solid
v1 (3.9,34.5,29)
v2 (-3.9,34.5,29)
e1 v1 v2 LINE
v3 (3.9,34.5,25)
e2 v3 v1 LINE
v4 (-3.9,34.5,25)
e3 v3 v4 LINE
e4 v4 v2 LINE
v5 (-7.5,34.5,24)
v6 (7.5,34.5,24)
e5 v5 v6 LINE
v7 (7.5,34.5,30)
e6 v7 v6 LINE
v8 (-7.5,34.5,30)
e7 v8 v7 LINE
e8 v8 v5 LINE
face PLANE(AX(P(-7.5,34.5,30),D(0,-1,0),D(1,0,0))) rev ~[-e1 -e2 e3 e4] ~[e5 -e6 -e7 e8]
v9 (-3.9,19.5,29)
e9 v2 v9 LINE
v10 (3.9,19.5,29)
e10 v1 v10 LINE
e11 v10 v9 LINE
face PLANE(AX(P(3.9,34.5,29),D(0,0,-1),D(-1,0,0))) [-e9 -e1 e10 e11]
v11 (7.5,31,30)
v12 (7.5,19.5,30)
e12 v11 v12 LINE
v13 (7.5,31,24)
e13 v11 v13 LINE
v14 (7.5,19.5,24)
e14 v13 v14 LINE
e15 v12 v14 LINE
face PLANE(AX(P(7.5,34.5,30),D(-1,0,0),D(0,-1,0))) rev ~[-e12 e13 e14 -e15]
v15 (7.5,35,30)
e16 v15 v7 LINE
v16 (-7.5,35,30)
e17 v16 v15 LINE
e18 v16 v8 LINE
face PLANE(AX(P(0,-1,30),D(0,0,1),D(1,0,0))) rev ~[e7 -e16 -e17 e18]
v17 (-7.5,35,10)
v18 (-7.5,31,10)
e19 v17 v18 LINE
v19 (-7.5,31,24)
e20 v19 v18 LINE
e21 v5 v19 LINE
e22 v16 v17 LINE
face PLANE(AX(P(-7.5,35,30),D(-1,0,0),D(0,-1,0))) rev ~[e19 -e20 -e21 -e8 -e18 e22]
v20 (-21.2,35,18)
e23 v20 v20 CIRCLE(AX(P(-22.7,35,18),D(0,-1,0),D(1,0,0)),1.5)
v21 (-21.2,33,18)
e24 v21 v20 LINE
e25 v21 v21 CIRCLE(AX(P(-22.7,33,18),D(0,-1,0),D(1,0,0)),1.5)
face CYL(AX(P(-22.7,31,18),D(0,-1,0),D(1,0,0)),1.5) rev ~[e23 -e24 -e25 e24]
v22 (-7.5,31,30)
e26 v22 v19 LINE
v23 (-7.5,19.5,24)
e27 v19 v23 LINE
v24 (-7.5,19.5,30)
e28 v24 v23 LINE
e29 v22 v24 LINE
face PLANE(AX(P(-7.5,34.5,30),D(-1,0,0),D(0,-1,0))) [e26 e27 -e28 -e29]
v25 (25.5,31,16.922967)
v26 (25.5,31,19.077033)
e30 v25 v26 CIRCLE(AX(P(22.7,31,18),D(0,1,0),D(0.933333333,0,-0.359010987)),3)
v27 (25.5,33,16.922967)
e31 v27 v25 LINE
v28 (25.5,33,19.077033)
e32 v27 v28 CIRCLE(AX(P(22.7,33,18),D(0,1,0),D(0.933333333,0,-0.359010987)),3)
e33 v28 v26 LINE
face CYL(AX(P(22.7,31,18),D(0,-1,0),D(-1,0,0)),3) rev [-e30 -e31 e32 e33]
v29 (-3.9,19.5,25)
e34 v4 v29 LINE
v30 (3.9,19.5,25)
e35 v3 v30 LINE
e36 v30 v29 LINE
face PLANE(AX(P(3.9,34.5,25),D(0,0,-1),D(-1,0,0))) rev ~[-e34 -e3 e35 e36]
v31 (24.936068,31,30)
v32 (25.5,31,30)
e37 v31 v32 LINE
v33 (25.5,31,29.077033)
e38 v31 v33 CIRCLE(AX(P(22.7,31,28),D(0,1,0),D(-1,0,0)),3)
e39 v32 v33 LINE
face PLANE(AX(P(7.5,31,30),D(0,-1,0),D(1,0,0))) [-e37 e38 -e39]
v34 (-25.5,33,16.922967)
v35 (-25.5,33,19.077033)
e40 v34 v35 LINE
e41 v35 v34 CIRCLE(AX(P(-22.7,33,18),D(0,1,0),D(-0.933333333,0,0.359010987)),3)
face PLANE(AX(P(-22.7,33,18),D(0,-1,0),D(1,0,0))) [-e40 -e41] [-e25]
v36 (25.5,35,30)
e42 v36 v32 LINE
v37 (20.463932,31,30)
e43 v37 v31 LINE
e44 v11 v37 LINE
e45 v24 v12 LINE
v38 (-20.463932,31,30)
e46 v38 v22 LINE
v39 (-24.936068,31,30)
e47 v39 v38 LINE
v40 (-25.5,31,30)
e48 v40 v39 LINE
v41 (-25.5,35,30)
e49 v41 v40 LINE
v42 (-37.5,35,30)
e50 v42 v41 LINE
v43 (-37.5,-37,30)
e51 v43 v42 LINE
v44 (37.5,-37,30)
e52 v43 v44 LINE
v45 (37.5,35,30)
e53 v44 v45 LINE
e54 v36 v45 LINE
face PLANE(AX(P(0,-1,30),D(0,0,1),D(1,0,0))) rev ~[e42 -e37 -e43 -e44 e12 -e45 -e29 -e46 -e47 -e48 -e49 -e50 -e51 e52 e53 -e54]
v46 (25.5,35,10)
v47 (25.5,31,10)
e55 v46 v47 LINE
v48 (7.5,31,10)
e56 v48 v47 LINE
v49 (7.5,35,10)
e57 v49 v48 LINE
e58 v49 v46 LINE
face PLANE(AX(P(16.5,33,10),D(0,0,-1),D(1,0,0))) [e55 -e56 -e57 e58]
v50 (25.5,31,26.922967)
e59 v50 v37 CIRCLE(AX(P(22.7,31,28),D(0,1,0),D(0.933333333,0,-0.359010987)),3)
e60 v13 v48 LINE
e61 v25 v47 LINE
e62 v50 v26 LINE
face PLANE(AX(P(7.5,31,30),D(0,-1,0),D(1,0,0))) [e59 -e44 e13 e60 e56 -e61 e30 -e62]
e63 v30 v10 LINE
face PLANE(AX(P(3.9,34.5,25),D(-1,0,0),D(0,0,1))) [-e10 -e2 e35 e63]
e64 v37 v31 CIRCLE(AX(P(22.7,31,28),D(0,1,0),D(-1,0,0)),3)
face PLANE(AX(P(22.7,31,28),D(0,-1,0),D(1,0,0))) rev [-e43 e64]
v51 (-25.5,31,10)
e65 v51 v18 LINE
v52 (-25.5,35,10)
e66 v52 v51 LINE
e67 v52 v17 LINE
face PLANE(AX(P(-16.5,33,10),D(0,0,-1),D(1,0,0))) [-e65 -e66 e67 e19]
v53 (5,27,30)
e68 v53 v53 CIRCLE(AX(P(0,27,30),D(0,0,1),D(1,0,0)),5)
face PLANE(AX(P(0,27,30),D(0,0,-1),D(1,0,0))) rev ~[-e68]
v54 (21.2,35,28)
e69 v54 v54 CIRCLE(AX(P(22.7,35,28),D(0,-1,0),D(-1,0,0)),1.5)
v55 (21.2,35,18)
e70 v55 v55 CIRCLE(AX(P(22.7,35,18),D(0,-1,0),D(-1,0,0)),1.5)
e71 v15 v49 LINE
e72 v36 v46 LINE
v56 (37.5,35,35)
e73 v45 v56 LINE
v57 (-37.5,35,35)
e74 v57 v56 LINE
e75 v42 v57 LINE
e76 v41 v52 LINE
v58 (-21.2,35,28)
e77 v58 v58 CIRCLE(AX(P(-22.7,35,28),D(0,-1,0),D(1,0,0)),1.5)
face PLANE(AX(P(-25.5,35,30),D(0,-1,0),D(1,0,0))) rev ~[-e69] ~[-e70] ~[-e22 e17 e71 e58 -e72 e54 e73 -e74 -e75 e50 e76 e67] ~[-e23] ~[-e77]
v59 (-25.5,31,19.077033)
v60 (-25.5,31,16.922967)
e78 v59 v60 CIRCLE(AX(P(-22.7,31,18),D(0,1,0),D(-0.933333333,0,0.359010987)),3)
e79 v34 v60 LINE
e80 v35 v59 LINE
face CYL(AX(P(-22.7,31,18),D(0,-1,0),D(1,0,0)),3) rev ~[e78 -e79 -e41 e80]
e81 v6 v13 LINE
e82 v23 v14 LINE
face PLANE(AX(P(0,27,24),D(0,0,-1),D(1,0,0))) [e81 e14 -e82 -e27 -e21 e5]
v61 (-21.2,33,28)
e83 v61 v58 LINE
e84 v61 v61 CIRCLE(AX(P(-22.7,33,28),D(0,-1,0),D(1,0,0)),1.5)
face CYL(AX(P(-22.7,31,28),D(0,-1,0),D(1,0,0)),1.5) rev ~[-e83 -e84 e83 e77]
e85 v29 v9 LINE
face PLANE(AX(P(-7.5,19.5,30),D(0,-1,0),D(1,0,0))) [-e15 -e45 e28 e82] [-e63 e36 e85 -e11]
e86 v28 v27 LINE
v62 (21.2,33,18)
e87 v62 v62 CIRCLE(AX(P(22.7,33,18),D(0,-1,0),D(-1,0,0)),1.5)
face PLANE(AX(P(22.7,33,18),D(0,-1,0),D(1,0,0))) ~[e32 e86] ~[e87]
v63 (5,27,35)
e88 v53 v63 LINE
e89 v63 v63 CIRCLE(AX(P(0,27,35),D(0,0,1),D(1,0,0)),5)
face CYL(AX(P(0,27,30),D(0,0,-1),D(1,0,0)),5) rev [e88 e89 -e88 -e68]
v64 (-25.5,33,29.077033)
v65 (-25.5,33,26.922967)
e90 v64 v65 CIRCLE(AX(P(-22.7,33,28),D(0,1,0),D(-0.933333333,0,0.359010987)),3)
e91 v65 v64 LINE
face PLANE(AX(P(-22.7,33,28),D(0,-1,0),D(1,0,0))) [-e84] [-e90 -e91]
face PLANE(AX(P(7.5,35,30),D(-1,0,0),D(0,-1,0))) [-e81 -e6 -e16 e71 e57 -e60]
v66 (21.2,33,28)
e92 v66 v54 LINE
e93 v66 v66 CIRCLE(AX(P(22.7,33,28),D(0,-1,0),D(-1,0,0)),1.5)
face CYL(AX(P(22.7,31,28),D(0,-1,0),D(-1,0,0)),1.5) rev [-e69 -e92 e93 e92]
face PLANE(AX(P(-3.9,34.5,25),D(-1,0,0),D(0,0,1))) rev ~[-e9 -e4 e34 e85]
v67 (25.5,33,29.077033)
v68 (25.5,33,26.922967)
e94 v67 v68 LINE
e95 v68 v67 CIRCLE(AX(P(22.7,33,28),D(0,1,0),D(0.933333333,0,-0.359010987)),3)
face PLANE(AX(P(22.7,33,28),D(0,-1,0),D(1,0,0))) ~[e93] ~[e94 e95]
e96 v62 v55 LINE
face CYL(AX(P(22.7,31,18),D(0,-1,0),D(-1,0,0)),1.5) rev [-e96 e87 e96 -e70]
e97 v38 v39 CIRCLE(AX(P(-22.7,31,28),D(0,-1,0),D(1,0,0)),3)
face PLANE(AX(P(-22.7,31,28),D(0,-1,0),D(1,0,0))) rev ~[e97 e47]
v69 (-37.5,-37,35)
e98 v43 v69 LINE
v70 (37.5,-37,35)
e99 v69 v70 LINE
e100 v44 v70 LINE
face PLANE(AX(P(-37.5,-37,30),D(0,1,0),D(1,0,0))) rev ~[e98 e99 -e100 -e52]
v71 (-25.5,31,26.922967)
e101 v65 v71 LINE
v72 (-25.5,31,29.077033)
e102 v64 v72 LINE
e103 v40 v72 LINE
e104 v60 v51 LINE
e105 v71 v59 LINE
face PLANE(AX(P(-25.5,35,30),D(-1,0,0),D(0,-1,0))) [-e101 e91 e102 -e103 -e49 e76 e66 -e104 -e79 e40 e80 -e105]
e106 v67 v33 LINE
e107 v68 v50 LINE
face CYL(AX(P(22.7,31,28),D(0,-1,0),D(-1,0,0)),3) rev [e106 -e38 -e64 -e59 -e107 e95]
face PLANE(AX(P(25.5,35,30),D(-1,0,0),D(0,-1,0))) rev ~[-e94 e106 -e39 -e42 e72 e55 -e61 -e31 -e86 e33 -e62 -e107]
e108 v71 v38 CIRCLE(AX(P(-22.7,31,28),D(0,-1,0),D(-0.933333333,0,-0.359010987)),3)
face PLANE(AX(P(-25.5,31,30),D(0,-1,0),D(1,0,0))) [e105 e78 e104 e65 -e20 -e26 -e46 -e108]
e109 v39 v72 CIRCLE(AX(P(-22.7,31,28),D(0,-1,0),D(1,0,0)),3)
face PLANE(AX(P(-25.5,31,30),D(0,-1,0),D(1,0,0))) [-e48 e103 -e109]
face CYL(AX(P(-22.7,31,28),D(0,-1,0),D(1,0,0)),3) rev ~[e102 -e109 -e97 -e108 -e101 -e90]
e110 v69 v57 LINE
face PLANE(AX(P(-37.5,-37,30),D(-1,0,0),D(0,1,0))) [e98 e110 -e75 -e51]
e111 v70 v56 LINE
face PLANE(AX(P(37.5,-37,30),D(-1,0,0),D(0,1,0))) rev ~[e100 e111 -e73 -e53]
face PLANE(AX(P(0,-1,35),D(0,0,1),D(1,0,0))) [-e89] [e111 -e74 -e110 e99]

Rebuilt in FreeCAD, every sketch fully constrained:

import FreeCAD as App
import Part
import Sketcher


def add_polygon(sketch, points):
    """Adds a closed chain of lines whose ends are joined by coincident constraints."""
    first, n = sketch.GeometryCount, len(points)
    for a, b in zip(points, points[1:] + points[:1]):
        sketch.addGeometry(Part.LineSegment(App.Vector(*a, 0), App.Vector(*b, 0)), False)
    for i in range(n):
        sketch.addConstraint(Sketcher.Constraint("Coincident", first + i, 2, first + (i + 1) % n, 1))

doc = App.newDocument("Part")
body = doc.addObject("PartDesign::Body", "Body")

sketch1 = body.newObject("Sketcher::SketchObject", "Sketch")
sketch1.AttachmentSupport = (doc.getObject("XY_Plane"), [""])
sketch1.MapMode = "FlatFace"
add_polygon(sketch1, [(-38, 35), (-38, -37), (38, -37), (38, 35)])
sketch1.addGeometry(Part.Circle(App.Vector(0, 27, 0), App.Vector(0, 0, 1), 5), False)
sketch1.addConstraint(Sketcher.Constraint("Vertical", 0))
sketch1.addConstraint(Sketcher.Constraint("Horizontal", 1))
sketch1.addConstraint(Sketcher.Constraint("Vertical", 2))
sketch1.addConstraint(Sketcher.Constraint("Horizontal", 3))
sketch1.addConstraint(Sketcher.Constraint("PointOnObject", 4, 3, -2))
sketch1.addConstraint(Sketcher.Constraint("Diameter", 4, 10.0))
sketch1.addConstraint(Sketcher.Constraint("DistanceX", 1, 1, 1, 2, 75.0))
sketch1.addConstraint(Sketcher.Constraint("DistanceY", 0, 2, 0, 1, 72.0))
sketch1.addConstraint(Sketcher.Constraint("DistanceY", -1, 1, 4, 3, 27.0))
sketch1.addConstraint(Sketcher.Constraint("DistanceY", 0, 2, -1, 1, 37.0))
sketch1.addConstraint(Sketcher.Constraint("DistanceX", 0, 2, -1, 1, 37.5))
pad1 = body.newObject("PartDesign::Pad", "Pad")
pad1.Profile = sketch1
pad1.Length = 5

sketch2 = body.newObject("Sketcher::SketchObject", "Sketch001")
sketch2.AttachmentSupport = (doc.getObject("XY_Plane"), [""])
sketch2.MapMode = "FlatFace"
add_polygon(sketch2, [(-8, 20), (-8, 34), (8, 34), (8, 20)])
sketch2.addConstraint(Sketcher.Constraint("Vertical", 0))
sketch2.addConstraint(Sketcher.Constraint("Horizontal", 1))
sketch2.addConstraint(Sketcher.Constraint("Vertical", 2))
sketch2.addConstraint(Sketcher.Constraint("Horizontal", 3))
sketch2.addConstraint(Sketcher.Constraint("Equal", 3, 0))
sketch2.addConstraint(Sketcher.Constraint("DistanceX", 1, 1, 1, 2, 15.0))
sketch2.addConstraint(Sketcher.Constraint("DistanceX", 0, 2, -1, 1, 7.5))
sketch2.addConstraint(Sketcher.Constraint("DistanceY", -1, 1, 0, 2, 34.5))
pad2 = body.newObject("PartDesign::Pad", "Pad001")
pad2.Profile = sketch2
pad2.Length = 6
pad2.Reversed = True

sketch3 = body.newObject("Sketcher::SketchObject", "Sketch002")
sketch3.AttachmentSupport = (doc.getObject("XZ_Plane"), [""])
sketch3.MapMode = "FlatFace"
sketch3.AttachmentOffset = App.Placement(App.Vector(0, 0, -34.5), App.Rotation())
add_polygon(sketch3, [(3.9, -1), (3.9, -5), (-3.9, -5), (-3.9, -1)])
sketch3.addConstraint(Sketcher.Constraint("Vertical", 0))
sketch3.addConstraint(Sketcher.Constraint("Horizontal", 1))
sketch3.addConstraint(Sketcher.Constraint("Vertical", 2))
sketch3.addConstraint(Sketcher.Constraint("Horizontal", 3))
sketch3.addConstraint(Sketcher.Constraint("DistanceY", 0, 2, 0, 1, 4.0))
sketch3.addConstraint(Sketcher.Constraint("DistanceX", 1, 2, 1, 1, 7.8))
sketch3.addConstraint(Sketcher.Constraint("DistanceY", 0, 2, -1, 1, 5.0))
sketch3.addConstraint(Sketcher.Constraint("DistanceX", -1, 1, 0, 2, 3.9))
pocket1 = body.newObject("PartDesign::Pocket", "Pocket")
pocket1.Profile = sketch3
pocket1.Length = 15
pocket1.Reversed = True

sketch4 = body.newObject("Sketcher::SketchObject", "Sketch003")
sketch4.AttachmentSupport = (doc.getObject("XY_Plane"), [""])
sketch4.MapMode = "FlatFace"
add_polygon(sketch4, [(-25.5, 31), (-25.5, 35), (-7.5, 35), (-7.5, 31)])
add_polygon(sketch4, [(7.5, 31), (7.5, 35), (25.5, 35), (25.5, 31)])
sketch4.addConstraint(Sketcher.Constraint("Vertical", 0))
sketch4.addConstraint(Sketcher.Constraint("Horizontal", 1))
sketch4.addConstraint(Sketcher.Constraint("Vertical", 2))
sketch4.addConstraint(Sketcher.Constraint("Horizontal", 3))
sketch4.addConstraint(Sketcher.Constraint("Vertical", 4))
sketch4.addConstraint(Sketcher.Constraint("Horizontal", 5))
sketch4.addConstraint(Sketcher.Constraint("Vertical", 6))
sketch4.addConstraint(Sketcher.Constraint("Horizontal", 7))
sketch4.addConstraint(Sketcher.Constraint("Symmetric", 1, 2, 4, 2, -2))
sketch4.addConstraint(Sketcher.Constraint("Symmetric", 3, 2, 6, 2, -2))
sketch4.addConstraint(Sketcher.Constraint("DistanceX", 1, 1, 1, 2, 18.0))
sketch4.addConstraint(Sketcher.Constraint("DistanceY", 0, 1, 0, 2, 4.0))
sketch4.addConstraint(Sketcher.Constraint("DistanceY", -1, 1, 0, 2, 35.0))
sketch4.addConstraint(Sketcher.Constraint("DistanceX", 1, 2, 4, 2, 15.0))
pad3 = body.newObject("PartDesign::Pad", "Pad002")
pad3.Profile = sketch4
pad3.Length = 20
pad3.Reversed = True

sketch5 = body.newObject("Sketcher::SketchObject", "Sketch004")
sketch5.AttachmentSupport = (doc.getObject("XZ_Plane"), [""])
sketch5.MapMode = "FlatFace"
sketch5.AttachmentOffset = App.Placement(App.Vector(0, 0, -31), App.Rotation())
sketch5.addGeometry(Part.Circle(App.Vector(-22.7, -2, 0), App.Vector(0, 0, 1), 1.5), False)
sketch5.addGeometry(Part.Circle(App.Vector(-22.7, -12, 0), App.Vector(0, 0, 1), 1.5), False)
sketch5.addConstraint(Sketcher.Constraint("Equal", 0, 1))
sketch5.addConstraint(Sketcher.Constraint("Vertical", 0, 3, 1, 3))
sketch5.addConstraint(Sketcher.Constraint("Diameter", 0, 3.0))
sketch5.addConstraint(Sketcher.Constraint("DistanceY", 0, 3, -1, 1, 2.0))
sketch5.addConstraint(Sketcher.Constraint("DistanceY", 1, 3, -1, 1, 12.0))
sketch5.addConstraint(Sketcher.Constraint("DistanceX", 0, 3, -1, 1, 22.7))
pocket2 = body.newObject("PartDesign::Pocket", "Pocket001")
pocket2.Profile = sketch5
pocket2.Length = 5

sketch6 = body.newObject("Sketcher::SketchObject", "Sketch005")
sketch6.AttachmentSupport = (doc.getObject("XZ_Plane"), [""])
sketch6.MapMode = "FlatFace"
sketch6.AttachmentOffset = App.Placement(App.Vector(0, 0, -31), App.Rotation())
sketch6.addGeometry(Part.Circle(App.Vector(-22.7, -2, 0), App.Vector(0, 0, 1), 3), False)
sketch6.addGeometry(Part.Circle(App.Vector(-22.7, -12, 0), App.Vector(0, 0, 1), 3), False)
sketch6.addConstraint(Sketcher.Constraint("Equal", 0, 1))
sketch6.addConstraint(Sketcher.Constraint("Vertical", 0, 3, 1, 3))
sketch6.addConstraint(Sketcher.Constraint("Diameter", 0, 6.0))
sketch6.addConstraint(Sketcher.Constraint("DistanceY", 0, 3, -1, 1, 2.0))
sketch6.addConstraint(Sketcher.Constraint("DistanceY", 1, 3, -1, 1, 12.0))
sketch6.addConstraint(Sketcher.Constraint("DistanceX", 0, 3, -1, 1, 22.7))
pocket3 = body.newObject("PartDesign::Pocket", "Pocket002")
pocket3.Profile = sketch6
pocket3.Length = 2
doc.recompute()

mirrored = body.newObject("PartDesign::Mirrored", "Mirrored")
mirrored.Originals = [pocket2, pocket3]
mirrored.MirrorPlane = (doc.getObject("YZ_Plane"), [""])
body.Tip = mirrored
body2 = doc.addObject("PartDesign::Body", "Body001")
doc.recompute()

body.Placement = App.Placement(App.Vector(0, 0, 30), App.Rotation(App.Vector(0, 0, 1), 0))
boolean = body2.newObject("PartDesign::Boolean", "Boolean")
boolean.Type = "Fuse"
boolean.addObjects([body])

doc.recompute()
